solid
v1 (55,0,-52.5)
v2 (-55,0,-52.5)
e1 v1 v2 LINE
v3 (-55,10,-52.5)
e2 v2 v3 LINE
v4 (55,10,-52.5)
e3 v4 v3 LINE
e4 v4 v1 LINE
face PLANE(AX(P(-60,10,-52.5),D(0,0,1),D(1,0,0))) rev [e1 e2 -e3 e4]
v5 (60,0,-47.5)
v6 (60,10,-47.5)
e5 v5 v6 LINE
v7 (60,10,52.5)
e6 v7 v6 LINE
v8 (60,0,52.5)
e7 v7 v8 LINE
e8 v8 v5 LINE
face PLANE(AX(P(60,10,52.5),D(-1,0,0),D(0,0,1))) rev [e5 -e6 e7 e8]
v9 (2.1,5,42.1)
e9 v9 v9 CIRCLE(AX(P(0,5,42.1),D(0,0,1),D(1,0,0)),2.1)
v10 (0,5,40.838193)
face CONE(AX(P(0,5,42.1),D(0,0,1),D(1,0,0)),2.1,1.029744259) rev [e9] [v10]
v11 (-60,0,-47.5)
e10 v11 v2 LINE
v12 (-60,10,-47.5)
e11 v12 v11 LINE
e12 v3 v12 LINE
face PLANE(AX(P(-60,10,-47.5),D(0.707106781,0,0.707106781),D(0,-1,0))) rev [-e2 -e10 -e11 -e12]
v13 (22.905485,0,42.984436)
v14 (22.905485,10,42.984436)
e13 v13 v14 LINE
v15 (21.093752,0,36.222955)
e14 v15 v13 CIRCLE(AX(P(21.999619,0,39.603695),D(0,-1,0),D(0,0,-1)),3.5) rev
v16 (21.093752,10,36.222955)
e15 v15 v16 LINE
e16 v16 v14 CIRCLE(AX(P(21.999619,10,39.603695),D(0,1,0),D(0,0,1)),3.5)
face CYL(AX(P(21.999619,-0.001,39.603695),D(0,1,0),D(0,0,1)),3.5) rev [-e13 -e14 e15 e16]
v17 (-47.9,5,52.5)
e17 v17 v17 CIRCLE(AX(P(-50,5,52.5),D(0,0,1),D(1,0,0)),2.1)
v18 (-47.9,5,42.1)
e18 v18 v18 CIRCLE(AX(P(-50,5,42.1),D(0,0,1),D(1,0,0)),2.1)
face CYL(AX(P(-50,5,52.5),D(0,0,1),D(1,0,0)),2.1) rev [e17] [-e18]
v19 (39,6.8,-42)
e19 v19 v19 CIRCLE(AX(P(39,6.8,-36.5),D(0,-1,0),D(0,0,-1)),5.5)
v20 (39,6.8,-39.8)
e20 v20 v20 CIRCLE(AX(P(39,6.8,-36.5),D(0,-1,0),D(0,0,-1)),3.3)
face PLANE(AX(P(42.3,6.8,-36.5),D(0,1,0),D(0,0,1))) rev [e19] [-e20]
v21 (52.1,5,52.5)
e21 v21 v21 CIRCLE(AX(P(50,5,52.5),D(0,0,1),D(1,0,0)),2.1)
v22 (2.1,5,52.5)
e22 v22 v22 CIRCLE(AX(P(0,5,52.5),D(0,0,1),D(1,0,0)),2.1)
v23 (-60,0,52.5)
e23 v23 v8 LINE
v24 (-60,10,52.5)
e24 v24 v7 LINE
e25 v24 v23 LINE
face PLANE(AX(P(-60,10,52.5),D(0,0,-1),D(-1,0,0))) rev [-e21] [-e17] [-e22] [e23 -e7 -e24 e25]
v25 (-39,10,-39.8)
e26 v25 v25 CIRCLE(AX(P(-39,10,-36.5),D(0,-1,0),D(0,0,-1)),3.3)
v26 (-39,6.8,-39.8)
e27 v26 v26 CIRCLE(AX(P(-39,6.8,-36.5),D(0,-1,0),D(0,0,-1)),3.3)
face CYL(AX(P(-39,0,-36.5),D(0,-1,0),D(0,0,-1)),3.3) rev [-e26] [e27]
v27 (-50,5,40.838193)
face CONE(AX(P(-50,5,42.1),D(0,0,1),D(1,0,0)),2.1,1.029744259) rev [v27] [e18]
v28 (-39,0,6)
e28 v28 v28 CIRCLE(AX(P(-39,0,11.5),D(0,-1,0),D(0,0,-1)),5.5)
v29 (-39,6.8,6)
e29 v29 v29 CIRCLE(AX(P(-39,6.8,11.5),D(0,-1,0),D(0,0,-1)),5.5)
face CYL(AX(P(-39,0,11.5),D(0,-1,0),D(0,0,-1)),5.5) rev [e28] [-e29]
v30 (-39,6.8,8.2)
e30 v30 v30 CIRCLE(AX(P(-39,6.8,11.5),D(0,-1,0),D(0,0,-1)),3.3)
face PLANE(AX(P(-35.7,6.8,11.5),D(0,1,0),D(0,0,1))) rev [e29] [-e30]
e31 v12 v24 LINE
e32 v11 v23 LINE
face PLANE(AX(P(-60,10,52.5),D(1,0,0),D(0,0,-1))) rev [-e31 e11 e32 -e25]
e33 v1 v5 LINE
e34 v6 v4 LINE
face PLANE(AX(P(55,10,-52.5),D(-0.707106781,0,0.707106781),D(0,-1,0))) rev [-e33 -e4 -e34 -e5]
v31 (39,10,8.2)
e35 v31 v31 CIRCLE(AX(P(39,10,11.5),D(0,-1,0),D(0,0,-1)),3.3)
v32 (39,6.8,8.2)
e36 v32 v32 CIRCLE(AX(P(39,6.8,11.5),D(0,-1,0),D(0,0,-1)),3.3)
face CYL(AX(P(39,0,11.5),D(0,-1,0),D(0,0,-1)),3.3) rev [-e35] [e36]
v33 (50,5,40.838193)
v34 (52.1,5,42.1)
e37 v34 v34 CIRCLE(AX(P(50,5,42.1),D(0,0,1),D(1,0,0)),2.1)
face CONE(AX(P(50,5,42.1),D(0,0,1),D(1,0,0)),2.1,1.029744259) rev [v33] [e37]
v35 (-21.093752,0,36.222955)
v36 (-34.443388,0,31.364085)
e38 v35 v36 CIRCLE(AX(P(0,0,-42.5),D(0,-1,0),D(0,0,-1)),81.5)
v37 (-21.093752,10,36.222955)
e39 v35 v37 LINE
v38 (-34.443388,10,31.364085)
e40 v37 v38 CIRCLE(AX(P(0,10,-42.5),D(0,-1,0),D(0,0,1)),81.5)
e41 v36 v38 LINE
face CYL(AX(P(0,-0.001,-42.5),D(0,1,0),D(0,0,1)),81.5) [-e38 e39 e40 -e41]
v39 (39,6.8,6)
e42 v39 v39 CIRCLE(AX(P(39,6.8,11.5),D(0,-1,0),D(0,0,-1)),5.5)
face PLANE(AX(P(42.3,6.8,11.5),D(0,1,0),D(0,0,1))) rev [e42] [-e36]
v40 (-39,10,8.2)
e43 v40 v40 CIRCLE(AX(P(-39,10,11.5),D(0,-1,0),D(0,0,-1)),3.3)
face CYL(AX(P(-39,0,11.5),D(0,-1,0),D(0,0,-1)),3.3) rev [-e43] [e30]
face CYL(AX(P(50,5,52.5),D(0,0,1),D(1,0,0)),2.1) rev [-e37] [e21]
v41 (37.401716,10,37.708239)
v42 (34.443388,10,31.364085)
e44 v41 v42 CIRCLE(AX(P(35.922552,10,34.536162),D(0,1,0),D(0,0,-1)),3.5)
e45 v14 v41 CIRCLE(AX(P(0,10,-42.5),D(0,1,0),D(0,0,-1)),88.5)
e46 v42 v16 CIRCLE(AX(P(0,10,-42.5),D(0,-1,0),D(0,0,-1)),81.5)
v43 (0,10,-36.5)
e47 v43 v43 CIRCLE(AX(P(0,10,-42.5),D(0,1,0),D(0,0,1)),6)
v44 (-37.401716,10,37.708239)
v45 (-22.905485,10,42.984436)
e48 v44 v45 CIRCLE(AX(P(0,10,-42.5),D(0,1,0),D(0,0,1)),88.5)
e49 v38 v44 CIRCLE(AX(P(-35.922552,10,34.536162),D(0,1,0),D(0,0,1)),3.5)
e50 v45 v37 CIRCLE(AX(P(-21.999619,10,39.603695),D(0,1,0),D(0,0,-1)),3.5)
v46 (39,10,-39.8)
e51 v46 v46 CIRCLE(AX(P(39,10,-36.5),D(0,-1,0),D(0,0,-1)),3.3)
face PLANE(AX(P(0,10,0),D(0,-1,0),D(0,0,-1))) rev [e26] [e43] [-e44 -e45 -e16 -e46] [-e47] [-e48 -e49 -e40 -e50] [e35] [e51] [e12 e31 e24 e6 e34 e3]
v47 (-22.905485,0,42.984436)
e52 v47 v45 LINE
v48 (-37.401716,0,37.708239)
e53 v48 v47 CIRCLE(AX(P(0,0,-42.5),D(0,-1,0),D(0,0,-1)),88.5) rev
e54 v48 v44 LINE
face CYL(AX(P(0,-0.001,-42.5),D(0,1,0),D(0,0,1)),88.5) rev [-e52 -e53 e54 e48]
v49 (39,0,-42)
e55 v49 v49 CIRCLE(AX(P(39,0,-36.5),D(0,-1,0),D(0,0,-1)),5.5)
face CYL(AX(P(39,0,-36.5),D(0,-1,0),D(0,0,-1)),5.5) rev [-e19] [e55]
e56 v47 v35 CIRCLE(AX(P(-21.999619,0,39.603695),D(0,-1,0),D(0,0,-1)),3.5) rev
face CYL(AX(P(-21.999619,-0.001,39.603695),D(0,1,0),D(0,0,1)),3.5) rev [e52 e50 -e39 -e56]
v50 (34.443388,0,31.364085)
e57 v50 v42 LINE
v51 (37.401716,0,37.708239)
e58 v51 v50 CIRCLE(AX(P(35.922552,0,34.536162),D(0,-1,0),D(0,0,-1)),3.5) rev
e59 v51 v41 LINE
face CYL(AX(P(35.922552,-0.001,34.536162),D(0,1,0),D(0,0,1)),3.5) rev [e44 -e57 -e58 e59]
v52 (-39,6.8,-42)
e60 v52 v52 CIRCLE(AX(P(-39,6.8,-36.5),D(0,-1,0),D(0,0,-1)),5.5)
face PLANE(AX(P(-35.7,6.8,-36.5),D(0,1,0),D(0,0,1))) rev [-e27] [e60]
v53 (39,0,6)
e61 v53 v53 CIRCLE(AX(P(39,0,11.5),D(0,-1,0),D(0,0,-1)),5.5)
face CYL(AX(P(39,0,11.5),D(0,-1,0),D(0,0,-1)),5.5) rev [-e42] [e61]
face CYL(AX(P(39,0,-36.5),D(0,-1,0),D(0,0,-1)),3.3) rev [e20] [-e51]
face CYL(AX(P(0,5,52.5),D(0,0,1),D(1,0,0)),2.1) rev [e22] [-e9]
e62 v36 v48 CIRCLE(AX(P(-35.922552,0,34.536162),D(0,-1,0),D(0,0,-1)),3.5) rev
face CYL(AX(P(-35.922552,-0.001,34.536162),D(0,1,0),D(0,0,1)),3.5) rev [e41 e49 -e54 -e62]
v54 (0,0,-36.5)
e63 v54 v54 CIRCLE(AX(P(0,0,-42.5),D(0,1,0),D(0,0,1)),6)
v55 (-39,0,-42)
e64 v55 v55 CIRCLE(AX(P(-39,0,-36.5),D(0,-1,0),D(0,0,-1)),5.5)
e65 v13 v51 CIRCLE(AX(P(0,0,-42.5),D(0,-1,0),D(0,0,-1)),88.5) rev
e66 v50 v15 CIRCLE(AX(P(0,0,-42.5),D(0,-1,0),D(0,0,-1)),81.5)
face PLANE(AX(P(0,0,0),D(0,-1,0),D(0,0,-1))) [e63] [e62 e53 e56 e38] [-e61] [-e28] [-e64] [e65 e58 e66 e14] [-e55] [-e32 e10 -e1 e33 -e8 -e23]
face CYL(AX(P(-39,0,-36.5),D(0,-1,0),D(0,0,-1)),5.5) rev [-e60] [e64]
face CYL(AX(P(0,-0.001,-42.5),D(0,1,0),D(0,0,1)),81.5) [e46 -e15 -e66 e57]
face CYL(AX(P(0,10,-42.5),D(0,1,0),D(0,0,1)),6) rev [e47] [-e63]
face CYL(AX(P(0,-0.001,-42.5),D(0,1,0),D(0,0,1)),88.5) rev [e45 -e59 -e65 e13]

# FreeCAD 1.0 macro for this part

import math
import FreeCAD as App
import Part
import Sketcher
from FreeCAD import Vector


def edges_at(feature, points):
    """Names of the edges that pass closest to the given points."""
    edges = feature.Shape.Edges
    near = lambda p: min(range(len(edges)), key=lambda i: edges[i].distToShape(Part.Vertex(*p))[0])
    return sorted({f"Edge{near(p) + 1}" for p in points})

doc = App.newDocument("Part")
params = doc.addObject("Spreadsheet::Sheet", "Params")
for row, (alias, value) in enumerate([
    ("sketch1_width", "120 mm"),
    ("sketch1_height", "105 mm"),
    ("pad1_length", "10 mm"),
    ("sketch2_diameter", "6.6 mm"),
    ("hole_diameter", "6.6 mm"),
    ("hole_cbore_diameter", "11 mm"),
    ("hole_cbore_depth", "6.8 mm"),
    ("sketch3_diameter", "12 mm"),
    ("hole2_diameter", "12 mm"),
    ("sketch4_radius", "88.5 mm"),
    ("sketch4_radius2", "3.5 mm"),
    ("sketch5_radius", "3.5 mm"),
    ("sketch5_radius2", "81.5 mm"),
    ("sketch6_diameter", "4.2 mm"),
    ("hole3_diameter", "4.2 mm"),
    ("hole3_depth", "10.4 mm"),
    ("chamfer_size", "5 mm"),
], start=1):
    params.set(f"A{row}", alias)
    params.set(f"B{row}", "=" + value)
    params.setAlias(f"B{row}", alias)

body = doc.addObject("PartDesign::Body", "Body")

sketch1 = body.newObject("Sketcher::SketchObject", "Sketch")
sketch1.AttachmentSupport = (doc.getObject("XZ_Plane"), [""])
sketch1.MapMode = "FlatFace"
sketch1.addGeometry([
    Part.LineSegment(Vector(-60, -52, 0), Vector(-60, 52, 0)),
    Part.LineSegment(Vector(-60, 52, 0), Vector(60, 52, 0)),
    Part.LineSegment(Vector(60, 52, 0), Vector(60, -52, 0)),
    Part.LineSegment(Vector(60, -52, 0), Vector(-60, -52, 0)),
], False)
sketch1.addConstraint([
    Sketcher.Constraint("Coincident", 0, 2, 1, 1),
    Sketcher.Constraint("Coincident", 1, 2, 2, 1),
    Sketcher.Constraint("Coincident", 2, 2, 3, 1),
    Sketcher.Constraint("Coincident", 3, 2, 0, 1),
    Sketcher.Constraint("Vertical", 0),
    Sketcher.Constraint("Horizontal", 1),
    Sketcher.Constraint("Vertical", 2),
    Sketcher.Constraint("Horizontal", 3),
    Sketcher.Constraint("Symmetric", 0, 2, 2, 2, -1, 1),
    Sketcher.Constraint("DistanceX", 1, 1, 1, 2, 120.0),
    Sketcher.Constraint("DistanceY", 0, 1, 0, 2, 105.0),
])
sketch1.setExpression("Constraints[9]", "Params.sketch1_width")
sketch1.setExpression("Constraints[10]", "Params.sketch1_height")
pad1 = body.newObject("PartDesign::Pad", "Pad")
pad1.Profile = sketch1
pad1.setExpression("Length", "Params.pad1_length")
pad1.Reversed = True

sketch2 = body.newObject("Sketcher::SketchObject", "Sketch001")
sketch2.AttachmentSupport = (doc.getObject("XZ_Plane"), [""])
sketch2.MapMode = "FlatFace"
sketch2.addGeometry([
    Part.Circle(Vector(-39, 11.5, 0), Vector(0, 0, 1), 3.3),
    Part.Circle(Vector(39, 11.5, 0), Vector(0, 0, 1), 3.3),
    Part.Circle(Vector(39, -36.5, 0), Vector(0, 0, 1), 3.3),
    Part.Circle(Vector(-39, -36.5, 0), Vector(0, 0, 1), 3.3),
], False)
sketch2.addConstraint([
    Sketcher.Constraint("Equal", 0, 1),
    Sketcher.Constraint("Equal", 1, 2),
    Sketcher.Constraint("Equal", 2, 3),
    Sketcher.Constraint("Symmetric", 0, 3, 1, 3, -2),
    Sketcher.Constraint("Symmetric", 2, 3, 3, 3, -2),
    Sketcher.Constraint("Vertical", 1, 3, 2, 3),
    Sketcher.Constraint("Diameter", 0, 6.6),
    Sketcher.Constraint("DistanceX", 0, 3, -1, 1, 39.0),
    Sketcher.Constraint("DistanceY", 2, 3, 1, 3, 48.0),
    Sketcher.Constraint("DistanceY", -1, 1, 0, 3, 11.5),
])
sketch2.setExpression("Constraints[6]", "Params.sketch2_diameter")
doc.recompute()
hole = body.newObject("PartDesign::Hole", "Hole")
hole.Profile = sketch2
hole.ThreadType = "None"
hole.setExpression("Diameter", "Params.hole_diameter")
hole.DepthType = "ThroughAll"
hole.HoleCutType = "Counterbore"
hole.setExpression("HoleCutDiameter", "Params.hole_cbore_diameter")
hole.setExpression("HoleCutDepth", "Params.hole_cbore_depth")

sketch3 = body.newObject("Sketcher::SketchObject", "Sketch002")
sketch3.AttachmentSupport = (doc.getObject("XZ_Plane"), [""])
sketch3.MapMode = "FlatFace"
sketch3.AttachmentOffset = App.Placement(Vector(0, 0, -10), App.Rotation())
sketch3.addGeometry(Part.Circle(Vector(0, -42, 0), Vector(0, 0, 1), 6), False)
sketch3.addConstraint([
    Sketcher.Constraint("PointOnObject", 0, 3, -2),
    Sketcher.Constraint("Diameter", 0, 12.0),
    Sketcher.Constraint("DistanceY", 0, 3, -1, 1, 42.5),
])
sketch3.setExpression("Constraints[1]", "Params.sketch3_diameter")
doc.recompute()
hole2 = body.newObject("PartDesign::Hole", "Hole001")
hole2.Profile = sketch3
hole2.ThreadType = "None"
hole2.setExpression("Diameter", "Params.hole2_diameter")
hole2.DepthType = "ThroughAll"
hole2.Reversed = True

sketch4 = body.newObject("Sketcher::SketchObject", "Sketch003")
sketch4.AttachmentSupport = (doc.getObject("XZ_Plane"), [""])
sketch4.MapMode = "FlatFace"
sketch4.AttachmentOffset = App.Placement(Vector(0, 0, -10), App.Rotation())
sketch4.addGeometry([
    Part.ArcOfCircle(Part.Circle(Vector(0, -42.5, 0), Vector(0, 0, 1), 88.5), math.radians(105), math.radians(115)),
    Part.ArcOfCircle(Part.Circle(Vector(-22, 39.6, 0), Vector(0, 0, 1), 3.5), math.radians(-75), math.radians(105)),
    Part.ArcOfCircle(Part.Circle(Vector(0, -42.5, 0), Vector(0, 0, 1), 81.5), math.radians(105), math.radians(115)),
    Part.ArcOfCircle(Part.Circle(Vector(-35.9, 34.5, 0), Vector(0, 0, 1), 3.5), math.radians(115), math.radians(295)),
], False)
sketch4.addConstraint([
    Sketcher.Constraint("Tangent", 0, 1, 1, 2),
    Sketcher.Constraint("Tangent", 1, 1, 2, 1),
    Sketcher.Constraint("Tangent", 2, 2, 3, 2),
    Sketcher.Constraint("Tangent", 3, 1, 0, 2),
    Sketcher.Constraint("Coincident", 2, 3, 0, 3),
    Sketcher.Constraint("PointOnObject", 0, 3, -2),
    Sketcher.Constraint("Radius", 0, 88.5),
    Sketcher.Constraint("Radius", 1, 3.5),
    Sketcher.Constraint("DistanceY", 0, 3, -1, 1, 42.5),
    Sketcher.Constraint("DistanceX", 3, 3, 1, 1, 14.8288),
    Sketcher.Constraint("DistanceX", 1, 3, -1, 1, 21.999619),
])
sketch4.setExpression("Constraints[6]", "Params.sketch4_radius")
sketch4.setExpression("Constraints[7]", "Params.sketch4_radius2")
pocket1 = body.newObject("PartDesign::Pocket", "Pocket")
pocket1.Profile = sketch4
pocket1.Type = "UpToFirst"
pocket1.Reversed = True

sketch5 = body.newObject("Sketcher::SketchObject", "Sketch004")
sketch5.AttachmentSupport = (doc.getObject("XZ_Plane"), [""])
sketch5.MapMode = "FlatFace"
sketch5.AttachmentOffset = App.Placement(Vector(0, 0, -10), App.Rotation())
sketch5.addGeometry([
    Part.ArcOfCircle(Part.Circle(Vector(35.9, 34.5, 0), Vector(0, 0, 1), 3.5), math.radians(-115), math.radians(65)),
    Part.ArcOfCircle(Part.Circle(Vector(0, -42.5, 0), Vector(0, 0, 1), 81.5), math.radians(65), math.radians(75)),
    Part.ArcOfCircle(Part.Circle(Vector(22, 39.6, 0), Vector(0, 0, 1), 3.5), math.radians(75), math.radians(255)),
    Part.ArcOfCircle(Part.Circle(Vector(0, -42.5, 0), Vector(0, 0, 1), 88.5), math.radians(65), math.radians(75)),
], False)
sketch5.addConstraint([
    Sketcher.Constraint("Tangent", 0, 1, 1, 1),
    Sketcher.Constraint("Tangent", 1, 2, 2, 2),
    Sketcher.Constraint("Tangent", 2, 1, 3, 2),
    Sketcher.Constraint("Tangent", 3, 1, 0, 2),
    Sketcher.Constraint("Coincident", 3, 3, 1, 3),
    Sketcher.Constraint("PointOnObject", 1, 3, -2),
    Sketcher.Constraint("Radius", 0, 3.5),
    Sketcher.Constraint("Radius", 1, 81.5),
    Sketcher.Constraint("DistanceY", 1, 3, -1, 1, 42.5),
    Sketcher.Constraint("DistanceX", 1, 2, 0, 3, 14.8288),
    Sketcher.Constraint("DistanceY", -1, 1, 0, 3, 34.536162),
])
sketch5.setExpression("Constraints[6]", "Params.sketch5_radius")
sketch5.setExpression("Constraints[7]", "Params.sketch5_radius2")
pocket2 = body.newObject("PartDesign::Pocket", "Pocket001")
pocket2.Profile = sketch5
pocket2.Type = "UpToFirst"
pocket2.Reversed = True

sketch6 = body.newObject("Sketcher::SketchObject", "Sketch005")
sketch6.AttachmentSupport = (doc.getObject("XY_Plane"), [""])
sketch6.MapMode = "FlatFace"
sketch6.AttachmentOffset = App.Placement(Vector(0, 0, 52.5), App.Rotation())
sketch6.addGeometry([
    Part.Circle(Vector(-50, 5, 0), Vector(0, 0, 1), 2.1),
    Part.Circle(Vector(50, 5, 0), Vector(0, 0, 1), 2.1),
    Part.Circle(Vector(0, 5, 0), Vector(0, 0, 1), 2.1),
], False)
sketch6.addConstraint([
    Sketcher.Constraint("Equal", 0, 1),
    Sketcher.Constraint("Equal", 1, 2),
    Sketcher.Constraint("Symmetric", 0, 3, 1, 3, -2),
    Sketcher.Constraint("PointOnObject", 2, 3, -2),
    Sketcher.Constraint("Horizontal", 1, 3, 2, 3),
    Sketcher.Constraint("Diameter", 0, 4.2),
    Sketcher.Constraint("DistanceX", 0, 3, -1, 1, 50.0),
    Sketcher.Constraint("DistanceY", -1, 1, 0, 3, 5.0),
])
sketch6.setExpression("Constraints[5]", "Params.sketch6_diameter")
doc.recompute()
hole3 = body.newObject("PartDesign::Hole", "Hole002")
hole3.Profile = sketch6
hole3.ThreadType = "None"
hole3.setExpression("Diameter", "Params.hole3_diameter")
hole3.DepthType = "Dimension"
hole3.setExpression("Depth", "Params.hole3_depth")
hole3.DrillPoint = "Angled"
hole3.DrillPointAngle = 118
doc.recompute()

chamfer = body.newObject("PartDesign::Chamfer", "Chamfer")
chamfer.Base = (hole3, edges_at(hole3, [(-60, 5, -52.5), (60, 5, -52.5)]))
chamfer.setExpression("Size", "Params.chamfer_size")

doc.recompute()
